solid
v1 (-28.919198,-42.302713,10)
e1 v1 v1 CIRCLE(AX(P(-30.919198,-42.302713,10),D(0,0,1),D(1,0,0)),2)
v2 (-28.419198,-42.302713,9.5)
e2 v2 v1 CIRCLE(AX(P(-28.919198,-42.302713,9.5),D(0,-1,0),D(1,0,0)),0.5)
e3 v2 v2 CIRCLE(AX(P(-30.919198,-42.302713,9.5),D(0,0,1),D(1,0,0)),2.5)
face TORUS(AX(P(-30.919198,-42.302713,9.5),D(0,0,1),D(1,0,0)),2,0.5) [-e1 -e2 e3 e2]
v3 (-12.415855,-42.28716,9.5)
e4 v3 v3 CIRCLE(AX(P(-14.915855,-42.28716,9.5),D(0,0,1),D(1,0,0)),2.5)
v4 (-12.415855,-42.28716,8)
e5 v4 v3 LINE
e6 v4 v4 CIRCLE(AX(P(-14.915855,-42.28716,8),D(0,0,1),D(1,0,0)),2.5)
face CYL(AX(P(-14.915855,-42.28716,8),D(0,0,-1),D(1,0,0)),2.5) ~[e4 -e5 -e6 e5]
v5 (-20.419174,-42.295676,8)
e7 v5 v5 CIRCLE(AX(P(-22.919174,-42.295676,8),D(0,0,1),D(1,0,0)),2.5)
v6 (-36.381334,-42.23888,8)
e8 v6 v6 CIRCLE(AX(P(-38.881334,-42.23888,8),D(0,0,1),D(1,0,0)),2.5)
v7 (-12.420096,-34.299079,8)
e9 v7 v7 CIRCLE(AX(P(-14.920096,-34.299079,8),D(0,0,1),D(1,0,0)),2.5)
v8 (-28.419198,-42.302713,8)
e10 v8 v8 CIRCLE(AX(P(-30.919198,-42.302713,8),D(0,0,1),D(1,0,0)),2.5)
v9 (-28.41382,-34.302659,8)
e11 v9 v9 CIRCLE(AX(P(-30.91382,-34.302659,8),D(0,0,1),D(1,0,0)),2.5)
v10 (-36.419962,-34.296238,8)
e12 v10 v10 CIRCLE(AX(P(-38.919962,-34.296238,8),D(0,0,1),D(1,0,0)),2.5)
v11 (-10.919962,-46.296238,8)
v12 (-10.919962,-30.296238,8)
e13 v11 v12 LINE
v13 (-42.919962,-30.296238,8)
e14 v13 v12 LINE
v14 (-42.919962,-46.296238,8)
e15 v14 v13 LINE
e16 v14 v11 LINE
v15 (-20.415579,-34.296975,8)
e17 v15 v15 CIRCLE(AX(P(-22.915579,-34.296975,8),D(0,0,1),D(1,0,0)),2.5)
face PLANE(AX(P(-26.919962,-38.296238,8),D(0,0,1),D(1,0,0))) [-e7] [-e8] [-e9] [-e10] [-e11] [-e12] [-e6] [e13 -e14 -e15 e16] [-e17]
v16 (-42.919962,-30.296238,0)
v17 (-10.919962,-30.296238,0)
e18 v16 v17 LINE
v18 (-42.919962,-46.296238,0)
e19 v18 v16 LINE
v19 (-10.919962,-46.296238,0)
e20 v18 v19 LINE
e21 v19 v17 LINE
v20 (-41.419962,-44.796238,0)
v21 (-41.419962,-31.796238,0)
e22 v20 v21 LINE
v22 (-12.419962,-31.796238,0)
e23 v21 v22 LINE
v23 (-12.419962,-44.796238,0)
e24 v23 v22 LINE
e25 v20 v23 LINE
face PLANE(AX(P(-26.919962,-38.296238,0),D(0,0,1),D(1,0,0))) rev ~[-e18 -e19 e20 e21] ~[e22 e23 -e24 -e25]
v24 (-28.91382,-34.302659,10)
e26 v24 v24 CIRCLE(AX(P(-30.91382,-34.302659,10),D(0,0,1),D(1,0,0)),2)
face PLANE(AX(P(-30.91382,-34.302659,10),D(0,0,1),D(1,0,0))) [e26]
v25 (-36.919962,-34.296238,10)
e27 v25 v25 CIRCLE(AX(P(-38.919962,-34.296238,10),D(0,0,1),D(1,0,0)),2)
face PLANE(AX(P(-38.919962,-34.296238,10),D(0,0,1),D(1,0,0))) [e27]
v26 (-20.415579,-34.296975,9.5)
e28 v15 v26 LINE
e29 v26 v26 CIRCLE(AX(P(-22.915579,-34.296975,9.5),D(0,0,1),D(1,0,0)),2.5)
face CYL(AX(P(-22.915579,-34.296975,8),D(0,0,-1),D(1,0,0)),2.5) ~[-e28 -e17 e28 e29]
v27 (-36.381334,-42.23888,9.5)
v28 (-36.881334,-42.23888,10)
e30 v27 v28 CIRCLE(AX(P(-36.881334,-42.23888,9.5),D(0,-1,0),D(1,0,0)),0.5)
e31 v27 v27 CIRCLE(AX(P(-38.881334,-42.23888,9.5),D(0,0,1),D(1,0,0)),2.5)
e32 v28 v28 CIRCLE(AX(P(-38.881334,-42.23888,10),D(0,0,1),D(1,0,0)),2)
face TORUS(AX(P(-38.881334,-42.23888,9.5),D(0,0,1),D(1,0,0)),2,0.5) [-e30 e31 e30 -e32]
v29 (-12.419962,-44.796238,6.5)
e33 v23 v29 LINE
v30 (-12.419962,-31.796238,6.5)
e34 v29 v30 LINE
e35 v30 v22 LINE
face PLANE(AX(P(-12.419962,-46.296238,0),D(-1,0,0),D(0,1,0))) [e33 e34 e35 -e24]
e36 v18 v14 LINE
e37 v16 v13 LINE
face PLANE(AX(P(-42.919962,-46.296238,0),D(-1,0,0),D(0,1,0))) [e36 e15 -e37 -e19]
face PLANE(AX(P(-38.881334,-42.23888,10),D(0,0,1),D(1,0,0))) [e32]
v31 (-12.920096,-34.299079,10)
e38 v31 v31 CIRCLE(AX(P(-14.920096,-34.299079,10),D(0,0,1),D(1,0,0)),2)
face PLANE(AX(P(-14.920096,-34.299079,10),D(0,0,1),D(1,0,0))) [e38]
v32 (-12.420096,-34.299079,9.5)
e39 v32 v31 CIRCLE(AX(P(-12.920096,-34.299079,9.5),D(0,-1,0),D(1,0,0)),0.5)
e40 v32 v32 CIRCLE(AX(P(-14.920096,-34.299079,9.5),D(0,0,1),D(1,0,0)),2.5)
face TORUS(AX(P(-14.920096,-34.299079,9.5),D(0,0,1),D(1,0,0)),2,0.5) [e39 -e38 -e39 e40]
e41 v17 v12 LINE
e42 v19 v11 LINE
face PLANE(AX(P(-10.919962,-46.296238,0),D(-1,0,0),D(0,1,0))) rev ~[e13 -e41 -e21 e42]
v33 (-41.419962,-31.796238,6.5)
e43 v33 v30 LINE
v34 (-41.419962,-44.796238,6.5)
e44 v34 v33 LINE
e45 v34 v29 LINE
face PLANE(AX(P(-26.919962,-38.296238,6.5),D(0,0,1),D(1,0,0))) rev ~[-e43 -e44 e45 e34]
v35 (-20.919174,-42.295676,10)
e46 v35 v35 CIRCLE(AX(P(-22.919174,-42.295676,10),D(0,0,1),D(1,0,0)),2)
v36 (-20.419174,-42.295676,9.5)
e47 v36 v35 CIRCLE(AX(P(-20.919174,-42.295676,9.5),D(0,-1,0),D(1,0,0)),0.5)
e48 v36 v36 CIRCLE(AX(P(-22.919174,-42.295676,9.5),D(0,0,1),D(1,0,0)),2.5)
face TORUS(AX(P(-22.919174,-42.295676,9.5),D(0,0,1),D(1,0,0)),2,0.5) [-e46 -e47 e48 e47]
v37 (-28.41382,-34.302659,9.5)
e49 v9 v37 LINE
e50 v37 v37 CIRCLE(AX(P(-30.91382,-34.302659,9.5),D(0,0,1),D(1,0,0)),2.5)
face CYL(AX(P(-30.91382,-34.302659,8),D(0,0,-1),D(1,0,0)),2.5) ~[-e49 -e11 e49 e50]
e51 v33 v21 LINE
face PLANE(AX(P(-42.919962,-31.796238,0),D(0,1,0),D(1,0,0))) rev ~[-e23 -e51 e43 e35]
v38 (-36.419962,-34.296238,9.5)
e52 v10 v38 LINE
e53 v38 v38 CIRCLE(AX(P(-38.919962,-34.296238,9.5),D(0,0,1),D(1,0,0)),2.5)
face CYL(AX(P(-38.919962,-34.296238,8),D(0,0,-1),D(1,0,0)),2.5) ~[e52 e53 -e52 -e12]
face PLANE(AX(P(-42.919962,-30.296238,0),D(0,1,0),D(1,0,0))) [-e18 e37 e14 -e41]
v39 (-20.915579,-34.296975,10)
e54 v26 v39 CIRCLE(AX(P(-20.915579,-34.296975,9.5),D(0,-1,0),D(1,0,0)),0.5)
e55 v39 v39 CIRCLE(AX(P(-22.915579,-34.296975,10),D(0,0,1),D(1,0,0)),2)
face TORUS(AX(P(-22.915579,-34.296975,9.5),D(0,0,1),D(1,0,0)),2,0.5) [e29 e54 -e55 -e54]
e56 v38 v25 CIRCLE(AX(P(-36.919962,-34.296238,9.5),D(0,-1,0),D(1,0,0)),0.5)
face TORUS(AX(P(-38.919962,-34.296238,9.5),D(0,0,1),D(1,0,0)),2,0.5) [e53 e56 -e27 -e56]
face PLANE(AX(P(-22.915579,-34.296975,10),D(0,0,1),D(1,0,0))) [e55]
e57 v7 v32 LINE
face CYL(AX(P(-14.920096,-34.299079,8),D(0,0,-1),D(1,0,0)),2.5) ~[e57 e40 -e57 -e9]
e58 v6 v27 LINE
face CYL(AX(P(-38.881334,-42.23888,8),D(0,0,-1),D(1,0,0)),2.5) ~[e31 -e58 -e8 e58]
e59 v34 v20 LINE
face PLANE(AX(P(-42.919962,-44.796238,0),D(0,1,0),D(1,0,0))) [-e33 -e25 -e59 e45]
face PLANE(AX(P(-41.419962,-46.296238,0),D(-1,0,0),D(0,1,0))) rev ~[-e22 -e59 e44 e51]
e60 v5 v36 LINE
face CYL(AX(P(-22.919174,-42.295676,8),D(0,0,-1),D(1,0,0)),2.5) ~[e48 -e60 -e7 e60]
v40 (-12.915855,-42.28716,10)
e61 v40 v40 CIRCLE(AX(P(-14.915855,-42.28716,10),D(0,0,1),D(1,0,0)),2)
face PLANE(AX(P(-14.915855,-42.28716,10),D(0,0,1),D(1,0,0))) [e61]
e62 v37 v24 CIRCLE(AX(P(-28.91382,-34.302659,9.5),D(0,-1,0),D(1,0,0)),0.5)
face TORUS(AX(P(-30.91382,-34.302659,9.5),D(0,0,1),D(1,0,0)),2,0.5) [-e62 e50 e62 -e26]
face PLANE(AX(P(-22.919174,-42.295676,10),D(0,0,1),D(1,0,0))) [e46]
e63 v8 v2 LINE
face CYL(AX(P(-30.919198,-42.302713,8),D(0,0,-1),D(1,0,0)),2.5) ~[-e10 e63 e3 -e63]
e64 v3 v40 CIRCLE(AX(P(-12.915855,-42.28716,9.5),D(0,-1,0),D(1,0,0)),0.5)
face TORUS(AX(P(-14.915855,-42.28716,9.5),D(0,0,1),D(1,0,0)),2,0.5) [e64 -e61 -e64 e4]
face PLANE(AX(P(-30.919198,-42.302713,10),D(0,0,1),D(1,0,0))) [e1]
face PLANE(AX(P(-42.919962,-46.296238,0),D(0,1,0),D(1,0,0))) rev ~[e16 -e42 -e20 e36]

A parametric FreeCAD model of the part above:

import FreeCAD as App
import Part
import Sketcher
from FreeCAD import Vector
Q = App.Units.Quantity


def edges_at(feature, points):
    """Names of the edges that pass closest to the given points."""
    edges = feature.Shape.Edges
    near = lambda p: min(range(len(edges)), key=lambda i: edges[i].distToShape(Part.Vertex(*p))[0])
    return sorted({f"Edge{near(p) + 1}" for p in points})


def faces_at(feature, points):
    """Names of the faces that lie closest to the given points."""
    faces = feature.Shape.Faces
    near = lambda p: min(range(len(faces)), key=lambda i: faces[i].distToShape(Part.Vertex(*p))[0])
    return sorted({f"Face{near(p) + 1}" for p in points})

doc = App.newDocument("Part")
body = doc.addObject("PartDesign::Body", "Body")

# Sketch on XY plane
sketch1 = doc.addObject("Sketcher::SketchObject", "Sketch")
body.addObject(sketch1)
sketch1.AttachmentSupport = (doc.XY_Plane, [""])
sketch1.MapMode = "FlatFace"
sketch1.addGeometry([
    Part.LineSegment(Vector(-43, -30, 0), Vector(-43, -46, 0)),
    Part.LineSegment(Vector(-43, -46, 0), Vector(-11, -46, 0)),
    Part.LineSegment(Vector(-11, -46, 0), Vector(-11, -30, 0)),
    Part.LineSegment(Vector(-11, -30, 0), Vector(-43, -30, 0)),
], False)
sketch1.addConstraint([
    Sketcher.Constraint("Coincident", 0, 2, 1, 1),
    Sketcher.Constraint("Coincident", 1, 2, 2, 1),
    Sketcher.Constraint("Coincident", 2, 2, 3, 1),
    Sketcher.Constraint("Coincident", 3, 2, 0, 1),
    Sketcher.Constraint("Vertical", 0),
    Sketcher.Constraint("Horizontal", 1),
    Sketcher.Constraint("Vertical", 2),
    Sketcher.Constraint("Horizontal", 3),
    Sketcher.Constraint("DistanceX", 1, 1, 1, 2, Q("32 mm")),
    Sketcher.Constraint("DistanceY", 0, 2, 0, 1, Q("16 mm")),
    Sketcher.Constraint("DistanceX", 0, 2, -1, 1, Q("42.919962 mm")),
    Sketcher.Constraint("DistanceY", 0, 2, -1, 1, Q("46.296238 mm")),
])
pad1 = doc.addObject("PartDesign::Pad", "Pad")
body.addObject(pad1)
pad1.Profile = sketch1
pad1.Length = 8
doc.recompute()

thickness = doc.addObject("PartDesign::Thickness", "Thickness")
body.addObject(thickness)
thickness.Base = (pad1, faces_at(pad1, [(-26.92, -38.296, 0)]))
thickness.Value = 1.5
thickness.Reversed = True
thickness.Join = "Arc"

# Sketch on XY plane
sketch2 = doc.addObject("Sketcher::SketchObject", "Sketch001")
body.addObject(sketch2)
sketch2.AttachmentSupport = (doc.XY_Plane, [""])
sketch2.MapMode = "FlatFace"
sketch2.AttachmentOffset = App.Placement(Vector(0, 0, 8), App.Rotation())
sketch2.addGeometry([
    Part.Circle(Vector(-38.9, -42.2, 0), Vector(0, 0, 1), 2.5),  # 0
    Part.Circle(Vector(-30.9, -42.3, 0), Vector(0, 0, 1), 2.5),  # 1
    Part.Circle(Vector(-22.9, -42.3, 0), Vector(0, 0, 1), 2.5),  # 2
    Part.Circle(Vector(-14.9, -42.3, 0), Vector(0, 0, 1), 2.5),  # 3
    Part.Circle(Vector(-38.9, -34.3, 0), Vector(0, 0, 1), 2.5),  # 4
    Part.Circle(Vector(-30.9, -34.3, 0), Vector(0, 0, 1), 2.5),  # 5
    Part.Circle(Vector(-22.9, -34.3, 0), Vector(0, 0, 1), 2.5),  # 6
    Part.Circle(Vector(-14.9, -34.3, 0), Vector(0, 0, 1), 2.5),  # 7
], False)
sketch2.addConstraint([
    Sketcher.Constraint("Equal", 0, 1),
    Sketcher.Constraint("Equal", 1, 2),
    Sketcher.Constraint("Equal", 2, 3),
    Sketcher.Constraint("Equal", 3, 4),
    Sketcher.Constraint("Equal", 4, 5),
    Sketcher.Constraint("Equal", 5, 6),
    Sketcher.Constraint("Equal", 6, 7),
    Sketcher.Constraint("Diameter", 0, Q("5 mm")),
    Sketcher.Constraint("DistanceX", 1, 3, -1, 1, Q("30.919198 mm")),
    Sketcher.Constraint("DistanceY", 3, 3, 5, 3, Q("7.984501 mm")),
    Sketcher.Constraint("DistanceY", 2, 3, 6, 3, Q("7.998701 mm")),
    Sketcher.Constraint("DistanceY", 0, 3, -1, 1, Q("42.23888 mm")),
    Sketcher.Constraint("DistanceY", 3, 3, -1, 1, Q("42.28716 mm")),
    Sketcher.Constraint("DistanceX", 4, 3, -1, 1, Q("38.919962 mm")),
    Sketcher.Constraint("DistanceY", 4, 3, -1, 1, Q("34.296238 mm")),
    Sketcher.Constraint("DistanceX", 5, 3, -1, 1, Q("30.91382 mm")),
    Sketcher.Constraint("DistanceX", 6, 3, -1, 1, Q("22.915579 mm")),
    Sketcher.Constraint("DistanceY", 7, 3, -1, 1, Q("34.299079 mm")),
    Sketcher.Constraint("DistanceX", 0, 3, 2, 3, Q("15.96216 mm")),
    Sketcher.Constraint("DistanceX", 2, 3, 3, 3, Q("8.003319 mm")),
    Sketcher.Constraint("DistanceX", 7, 3, 3, 3, Q("0.004241 mm")),
    Sketcher.Constraint("DistanceX", 0, 3, -1, 1, Q("38.881334 mm")),
    Sketcher.Constraint("DistanceY", 1, 3, -1, 1, Q("42.302713 mm")),
    Sketcher.Constraint("DistanceY", 2, 3, -1, 1, Q("42.295676 mm")),
])
pad2 = doc.addObject("PartDesign::Pad", "Pad001")
body.addObject(pad2)
pad2.Profile = sketch2
pad2.Length = 2
doc.recompute()

fillet = doc.addObject("PartDesign::Fillet", "Fillet")
body.addObject(fillet)
fillet.Base = (pad2, edges_at(pad2, [
    (-41.381, -42.239, 10),
    (-41.42, -34.296, 10),
    (-33.419, -42.303, 10),
    (-33.414, -34.303, 10),
    (-25.419, -42.296, 10),
    (-25.416, -34.297, 10),
    (-17.416, -42.287, 10),
    (-17.42, -34.299, 10),
]))
fillet.Radius = 0.5

doc.recompute()
